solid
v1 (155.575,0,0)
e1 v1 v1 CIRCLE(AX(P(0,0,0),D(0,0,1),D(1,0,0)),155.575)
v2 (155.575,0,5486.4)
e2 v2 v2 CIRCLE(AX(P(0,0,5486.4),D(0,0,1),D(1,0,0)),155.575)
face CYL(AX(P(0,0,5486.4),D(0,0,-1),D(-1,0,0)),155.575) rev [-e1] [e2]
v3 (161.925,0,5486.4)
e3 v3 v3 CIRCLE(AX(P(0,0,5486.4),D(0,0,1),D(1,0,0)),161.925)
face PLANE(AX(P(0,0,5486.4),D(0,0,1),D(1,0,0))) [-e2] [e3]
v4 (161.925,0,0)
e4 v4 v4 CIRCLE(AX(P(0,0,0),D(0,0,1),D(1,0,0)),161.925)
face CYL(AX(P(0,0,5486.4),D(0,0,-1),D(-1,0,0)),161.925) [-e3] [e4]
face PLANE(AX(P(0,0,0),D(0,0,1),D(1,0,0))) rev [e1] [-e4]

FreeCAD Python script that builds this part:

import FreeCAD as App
import Part
import Sketcher

V = App.Vector
Q = App.Units.Quantity

doc = App.newDocument("Part")
body = doc.addObject("PartDesign::Body", "Body")

sketch1 = body.newObject("Sketcher::SketchObject", "Sketch")
sketch1.AttachmentSupport = (doc.getObject("XY_Plane"), [""])
sketch1.MapMode = "FlatFace"
sketch1.addGeometry(Part.Circle(V(0, 0, 0), V(0, 0, 1), 162), False)
sketch1.addGeometry(Part.Circle(V(0, 0, 0), V(0, 0, 1), 156), False)
sketch1.addConstraint(Sketcher.Constraint("Coincident", 0, 3, -1, 1))
sketch1.addConstraint(Sketcher.Constraint("Coincident", 1, 3, -1, 1))
sketch1.addConstraint(Sketcher.Constraint("Diameter", 0, Q("12.75 in")))
sketch1.addConstraint(Sketcher.Constraint("Diameter", 1, Q("12.25 in")))
pad1 = body.newObject("PartDesign::Pad", "Pad")
pad1.Profile = sketch1
pad1.Length = Q("216 in")

doc.recompute()
